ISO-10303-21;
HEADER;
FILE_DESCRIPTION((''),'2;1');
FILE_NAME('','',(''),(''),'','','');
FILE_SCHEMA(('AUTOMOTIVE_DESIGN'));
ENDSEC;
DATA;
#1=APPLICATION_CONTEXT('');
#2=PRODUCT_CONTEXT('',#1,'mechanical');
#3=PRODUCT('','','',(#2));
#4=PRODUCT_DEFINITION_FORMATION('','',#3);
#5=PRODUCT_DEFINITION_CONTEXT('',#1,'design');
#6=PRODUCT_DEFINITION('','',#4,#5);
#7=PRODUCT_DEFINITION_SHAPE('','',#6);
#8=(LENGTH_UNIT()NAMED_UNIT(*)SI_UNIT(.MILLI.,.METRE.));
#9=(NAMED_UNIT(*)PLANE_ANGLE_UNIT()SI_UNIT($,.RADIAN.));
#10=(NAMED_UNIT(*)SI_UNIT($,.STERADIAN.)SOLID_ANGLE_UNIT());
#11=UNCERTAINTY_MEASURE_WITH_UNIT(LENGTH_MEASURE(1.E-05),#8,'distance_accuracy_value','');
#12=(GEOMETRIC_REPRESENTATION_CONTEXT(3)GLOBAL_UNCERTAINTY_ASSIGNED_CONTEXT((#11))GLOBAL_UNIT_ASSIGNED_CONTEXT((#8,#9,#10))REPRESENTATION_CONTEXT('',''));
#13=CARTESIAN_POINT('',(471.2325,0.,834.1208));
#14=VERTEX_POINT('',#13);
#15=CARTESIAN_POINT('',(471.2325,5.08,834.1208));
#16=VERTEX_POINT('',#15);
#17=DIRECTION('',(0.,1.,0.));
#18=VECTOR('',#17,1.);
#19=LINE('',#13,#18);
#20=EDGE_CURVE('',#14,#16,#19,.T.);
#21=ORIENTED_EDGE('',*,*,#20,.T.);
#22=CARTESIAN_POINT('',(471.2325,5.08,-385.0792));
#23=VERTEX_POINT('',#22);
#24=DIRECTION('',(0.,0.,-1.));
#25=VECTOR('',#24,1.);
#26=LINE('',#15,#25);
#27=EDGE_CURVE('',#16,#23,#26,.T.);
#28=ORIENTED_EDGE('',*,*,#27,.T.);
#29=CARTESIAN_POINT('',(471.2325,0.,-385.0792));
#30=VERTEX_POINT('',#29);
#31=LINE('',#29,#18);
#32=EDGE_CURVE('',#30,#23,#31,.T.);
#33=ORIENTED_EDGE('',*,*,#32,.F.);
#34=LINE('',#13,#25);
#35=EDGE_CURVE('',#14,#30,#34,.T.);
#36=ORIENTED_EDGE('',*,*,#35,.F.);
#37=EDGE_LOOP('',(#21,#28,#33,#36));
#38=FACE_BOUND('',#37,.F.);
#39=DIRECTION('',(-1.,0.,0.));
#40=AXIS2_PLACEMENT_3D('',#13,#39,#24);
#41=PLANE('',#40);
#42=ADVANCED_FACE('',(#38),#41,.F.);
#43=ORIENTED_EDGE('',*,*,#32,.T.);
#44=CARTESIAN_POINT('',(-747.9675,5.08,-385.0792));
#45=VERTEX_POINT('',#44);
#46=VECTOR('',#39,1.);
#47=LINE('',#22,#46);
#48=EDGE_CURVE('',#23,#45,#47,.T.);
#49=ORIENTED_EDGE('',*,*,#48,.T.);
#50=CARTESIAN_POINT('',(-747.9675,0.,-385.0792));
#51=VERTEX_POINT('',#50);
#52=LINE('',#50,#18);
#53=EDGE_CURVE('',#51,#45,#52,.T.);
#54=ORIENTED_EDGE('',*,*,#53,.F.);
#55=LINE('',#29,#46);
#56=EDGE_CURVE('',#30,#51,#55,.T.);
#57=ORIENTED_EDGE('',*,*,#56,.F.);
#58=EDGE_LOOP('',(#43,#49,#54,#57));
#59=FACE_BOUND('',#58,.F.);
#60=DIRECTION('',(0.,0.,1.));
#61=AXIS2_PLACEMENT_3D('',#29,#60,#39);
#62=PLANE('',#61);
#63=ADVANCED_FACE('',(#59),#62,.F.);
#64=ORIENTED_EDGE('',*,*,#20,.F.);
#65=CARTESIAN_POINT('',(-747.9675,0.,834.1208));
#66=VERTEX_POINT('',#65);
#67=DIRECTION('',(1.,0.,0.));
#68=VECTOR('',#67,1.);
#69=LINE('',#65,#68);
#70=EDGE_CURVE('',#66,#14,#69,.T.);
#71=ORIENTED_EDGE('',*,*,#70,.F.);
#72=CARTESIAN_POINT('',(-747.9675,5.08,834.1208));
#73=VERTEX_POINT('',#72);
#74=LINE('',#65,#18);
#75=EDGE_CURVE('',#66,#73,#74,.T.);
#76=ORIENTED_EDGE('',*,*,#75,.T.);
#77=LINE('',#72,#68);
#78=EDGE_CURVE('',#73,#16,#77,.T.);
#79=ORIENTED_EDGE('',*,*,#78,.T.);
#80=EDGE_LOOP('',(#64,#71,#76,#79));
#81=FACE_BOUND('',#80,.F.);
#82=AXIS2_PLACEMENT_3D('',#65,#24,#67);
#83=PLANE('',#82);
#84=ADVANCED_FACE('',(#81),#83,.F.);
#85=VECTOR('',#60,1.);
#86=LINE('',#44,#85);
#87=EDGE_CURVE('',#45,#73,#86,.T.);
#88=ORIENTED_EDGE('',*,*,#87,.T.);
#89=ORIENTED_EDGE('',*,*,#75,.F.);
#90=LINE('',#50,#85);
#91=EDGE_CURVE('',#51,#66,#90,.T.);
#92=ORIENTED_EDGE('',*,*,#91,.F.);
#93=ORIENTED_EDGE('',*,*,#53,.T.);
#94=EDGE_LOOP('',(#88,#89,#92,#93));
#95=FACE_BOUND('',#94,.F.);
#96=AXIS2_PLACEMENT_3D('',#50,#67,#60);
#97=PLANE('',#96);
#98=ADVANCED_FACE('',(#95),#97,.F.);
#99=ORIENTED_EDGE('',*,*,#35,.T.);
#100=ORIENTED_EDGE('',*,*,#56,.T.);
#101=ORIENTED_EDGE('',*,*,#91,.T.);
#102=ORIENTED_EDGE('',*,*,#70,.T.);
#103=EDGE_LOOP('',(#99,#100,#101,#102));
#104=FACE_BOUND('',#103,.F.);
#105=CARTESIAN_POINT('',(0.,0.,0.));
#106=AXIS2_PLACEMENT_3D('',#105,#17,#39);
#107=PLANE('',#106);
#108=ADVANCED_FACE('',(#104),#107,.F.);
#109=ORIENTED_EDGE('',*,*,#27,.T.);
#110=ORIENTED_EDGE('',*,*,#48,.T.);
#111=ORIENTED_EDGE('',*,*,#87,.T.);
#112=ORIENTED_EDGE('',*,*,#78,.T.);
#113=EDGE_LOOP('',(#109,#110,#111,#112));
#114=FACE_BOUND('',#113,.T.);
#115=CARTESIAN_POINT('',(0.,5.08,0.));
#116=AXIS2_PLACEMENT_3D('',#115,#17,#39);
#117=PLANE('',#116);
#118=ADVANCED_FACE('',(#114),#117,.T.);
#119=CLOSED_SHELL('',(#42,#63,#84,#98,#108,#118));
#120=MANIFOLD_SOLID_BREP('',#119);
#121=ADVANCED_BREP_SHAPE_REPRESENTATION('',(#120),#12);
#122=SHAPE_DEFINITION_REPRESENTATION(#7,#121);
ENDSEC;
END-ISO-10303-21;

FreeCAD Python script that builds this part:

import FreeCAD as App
import Part
import Sketcher
Q = App.Units.Quantity

doc = App.newDocument("Part")
params = doc.addObject("Spreadsheet::Sheet", "Params")
for row, (alias, value) in enumerate([
    ("sketch1_width", "48 in"),
    ("pad1_length", "0.2 in"),
], start=1):
    params.set(f"A{row}", alias)
    params.set(f"B{row}", "=" + value)
    params.setAlias(f"B{row}", alias)

body = doc.addObject("PartDesign::Body", "Body")

sketch1 = body.newObject("Sketcher::SketchObject", "Sketch")
sketch1.AttachmentSupport = (doc.getObject("XZ_Plane"), [""])
sketch1.MapMode = "FlatFace"
sketch1.addGeometry([
    Part.LineSegment(App.Vector(-748, -385, 0), App.Vector(-748, 834, 0)),
    Part.LineSegment(App.Vector(-748, 834, 0), App.Vector(471, 834, 0)),
    Part.LineSegment(App.Vector(471, 834, 0), App.Vector(471, -385, 0)),
    Part.LineSegment(App.Vector(471, -385, 0), App.Vector(-748, -385, 0)),
], False)
sketch1.addConstraint([
    Sketcher.Constraint("Coincident", 0, 2, 1, 1),
    Sketcher.Constraint("Coincident", 1, 2, 2, 1),
    Sketcher.Constraint("Coincident", 2, 2, 3, 1),
    Sketcher.Constraint("Coincident", 3, 2, 0, 1),
    Sketcher.Constraint("Vertical", 0),
    Sketcher.Constraint("Horizontal", 1),
    Sketcher.Constraint("Vertical", 2),
    Sketcher.Constraint("Horizontal", 3),
    Sketcher.Constraint("Equal", 3, 0),
    Sketcher.Constraint("DistanceX", 1, 1, 1, 2, Q("48 in")),
    Sketcher.Constraint("DistanceY", -1, 1, 0, 2, Q("32.8394 in")),
    Sketcher.Constraint("DistanceX", 0, 2, -1, 1, 747.9675),
])
sketch1.setExpression("Constraints[9]", "Params.sketch1_width")
pad1 = body.newObject("PartDesign::Pad", "Pad")
pad1.Profile = sketch1
pad1.setExpression("Length", "Params.pad1_length")
pad1.Reversed = True

doc.recompute()
